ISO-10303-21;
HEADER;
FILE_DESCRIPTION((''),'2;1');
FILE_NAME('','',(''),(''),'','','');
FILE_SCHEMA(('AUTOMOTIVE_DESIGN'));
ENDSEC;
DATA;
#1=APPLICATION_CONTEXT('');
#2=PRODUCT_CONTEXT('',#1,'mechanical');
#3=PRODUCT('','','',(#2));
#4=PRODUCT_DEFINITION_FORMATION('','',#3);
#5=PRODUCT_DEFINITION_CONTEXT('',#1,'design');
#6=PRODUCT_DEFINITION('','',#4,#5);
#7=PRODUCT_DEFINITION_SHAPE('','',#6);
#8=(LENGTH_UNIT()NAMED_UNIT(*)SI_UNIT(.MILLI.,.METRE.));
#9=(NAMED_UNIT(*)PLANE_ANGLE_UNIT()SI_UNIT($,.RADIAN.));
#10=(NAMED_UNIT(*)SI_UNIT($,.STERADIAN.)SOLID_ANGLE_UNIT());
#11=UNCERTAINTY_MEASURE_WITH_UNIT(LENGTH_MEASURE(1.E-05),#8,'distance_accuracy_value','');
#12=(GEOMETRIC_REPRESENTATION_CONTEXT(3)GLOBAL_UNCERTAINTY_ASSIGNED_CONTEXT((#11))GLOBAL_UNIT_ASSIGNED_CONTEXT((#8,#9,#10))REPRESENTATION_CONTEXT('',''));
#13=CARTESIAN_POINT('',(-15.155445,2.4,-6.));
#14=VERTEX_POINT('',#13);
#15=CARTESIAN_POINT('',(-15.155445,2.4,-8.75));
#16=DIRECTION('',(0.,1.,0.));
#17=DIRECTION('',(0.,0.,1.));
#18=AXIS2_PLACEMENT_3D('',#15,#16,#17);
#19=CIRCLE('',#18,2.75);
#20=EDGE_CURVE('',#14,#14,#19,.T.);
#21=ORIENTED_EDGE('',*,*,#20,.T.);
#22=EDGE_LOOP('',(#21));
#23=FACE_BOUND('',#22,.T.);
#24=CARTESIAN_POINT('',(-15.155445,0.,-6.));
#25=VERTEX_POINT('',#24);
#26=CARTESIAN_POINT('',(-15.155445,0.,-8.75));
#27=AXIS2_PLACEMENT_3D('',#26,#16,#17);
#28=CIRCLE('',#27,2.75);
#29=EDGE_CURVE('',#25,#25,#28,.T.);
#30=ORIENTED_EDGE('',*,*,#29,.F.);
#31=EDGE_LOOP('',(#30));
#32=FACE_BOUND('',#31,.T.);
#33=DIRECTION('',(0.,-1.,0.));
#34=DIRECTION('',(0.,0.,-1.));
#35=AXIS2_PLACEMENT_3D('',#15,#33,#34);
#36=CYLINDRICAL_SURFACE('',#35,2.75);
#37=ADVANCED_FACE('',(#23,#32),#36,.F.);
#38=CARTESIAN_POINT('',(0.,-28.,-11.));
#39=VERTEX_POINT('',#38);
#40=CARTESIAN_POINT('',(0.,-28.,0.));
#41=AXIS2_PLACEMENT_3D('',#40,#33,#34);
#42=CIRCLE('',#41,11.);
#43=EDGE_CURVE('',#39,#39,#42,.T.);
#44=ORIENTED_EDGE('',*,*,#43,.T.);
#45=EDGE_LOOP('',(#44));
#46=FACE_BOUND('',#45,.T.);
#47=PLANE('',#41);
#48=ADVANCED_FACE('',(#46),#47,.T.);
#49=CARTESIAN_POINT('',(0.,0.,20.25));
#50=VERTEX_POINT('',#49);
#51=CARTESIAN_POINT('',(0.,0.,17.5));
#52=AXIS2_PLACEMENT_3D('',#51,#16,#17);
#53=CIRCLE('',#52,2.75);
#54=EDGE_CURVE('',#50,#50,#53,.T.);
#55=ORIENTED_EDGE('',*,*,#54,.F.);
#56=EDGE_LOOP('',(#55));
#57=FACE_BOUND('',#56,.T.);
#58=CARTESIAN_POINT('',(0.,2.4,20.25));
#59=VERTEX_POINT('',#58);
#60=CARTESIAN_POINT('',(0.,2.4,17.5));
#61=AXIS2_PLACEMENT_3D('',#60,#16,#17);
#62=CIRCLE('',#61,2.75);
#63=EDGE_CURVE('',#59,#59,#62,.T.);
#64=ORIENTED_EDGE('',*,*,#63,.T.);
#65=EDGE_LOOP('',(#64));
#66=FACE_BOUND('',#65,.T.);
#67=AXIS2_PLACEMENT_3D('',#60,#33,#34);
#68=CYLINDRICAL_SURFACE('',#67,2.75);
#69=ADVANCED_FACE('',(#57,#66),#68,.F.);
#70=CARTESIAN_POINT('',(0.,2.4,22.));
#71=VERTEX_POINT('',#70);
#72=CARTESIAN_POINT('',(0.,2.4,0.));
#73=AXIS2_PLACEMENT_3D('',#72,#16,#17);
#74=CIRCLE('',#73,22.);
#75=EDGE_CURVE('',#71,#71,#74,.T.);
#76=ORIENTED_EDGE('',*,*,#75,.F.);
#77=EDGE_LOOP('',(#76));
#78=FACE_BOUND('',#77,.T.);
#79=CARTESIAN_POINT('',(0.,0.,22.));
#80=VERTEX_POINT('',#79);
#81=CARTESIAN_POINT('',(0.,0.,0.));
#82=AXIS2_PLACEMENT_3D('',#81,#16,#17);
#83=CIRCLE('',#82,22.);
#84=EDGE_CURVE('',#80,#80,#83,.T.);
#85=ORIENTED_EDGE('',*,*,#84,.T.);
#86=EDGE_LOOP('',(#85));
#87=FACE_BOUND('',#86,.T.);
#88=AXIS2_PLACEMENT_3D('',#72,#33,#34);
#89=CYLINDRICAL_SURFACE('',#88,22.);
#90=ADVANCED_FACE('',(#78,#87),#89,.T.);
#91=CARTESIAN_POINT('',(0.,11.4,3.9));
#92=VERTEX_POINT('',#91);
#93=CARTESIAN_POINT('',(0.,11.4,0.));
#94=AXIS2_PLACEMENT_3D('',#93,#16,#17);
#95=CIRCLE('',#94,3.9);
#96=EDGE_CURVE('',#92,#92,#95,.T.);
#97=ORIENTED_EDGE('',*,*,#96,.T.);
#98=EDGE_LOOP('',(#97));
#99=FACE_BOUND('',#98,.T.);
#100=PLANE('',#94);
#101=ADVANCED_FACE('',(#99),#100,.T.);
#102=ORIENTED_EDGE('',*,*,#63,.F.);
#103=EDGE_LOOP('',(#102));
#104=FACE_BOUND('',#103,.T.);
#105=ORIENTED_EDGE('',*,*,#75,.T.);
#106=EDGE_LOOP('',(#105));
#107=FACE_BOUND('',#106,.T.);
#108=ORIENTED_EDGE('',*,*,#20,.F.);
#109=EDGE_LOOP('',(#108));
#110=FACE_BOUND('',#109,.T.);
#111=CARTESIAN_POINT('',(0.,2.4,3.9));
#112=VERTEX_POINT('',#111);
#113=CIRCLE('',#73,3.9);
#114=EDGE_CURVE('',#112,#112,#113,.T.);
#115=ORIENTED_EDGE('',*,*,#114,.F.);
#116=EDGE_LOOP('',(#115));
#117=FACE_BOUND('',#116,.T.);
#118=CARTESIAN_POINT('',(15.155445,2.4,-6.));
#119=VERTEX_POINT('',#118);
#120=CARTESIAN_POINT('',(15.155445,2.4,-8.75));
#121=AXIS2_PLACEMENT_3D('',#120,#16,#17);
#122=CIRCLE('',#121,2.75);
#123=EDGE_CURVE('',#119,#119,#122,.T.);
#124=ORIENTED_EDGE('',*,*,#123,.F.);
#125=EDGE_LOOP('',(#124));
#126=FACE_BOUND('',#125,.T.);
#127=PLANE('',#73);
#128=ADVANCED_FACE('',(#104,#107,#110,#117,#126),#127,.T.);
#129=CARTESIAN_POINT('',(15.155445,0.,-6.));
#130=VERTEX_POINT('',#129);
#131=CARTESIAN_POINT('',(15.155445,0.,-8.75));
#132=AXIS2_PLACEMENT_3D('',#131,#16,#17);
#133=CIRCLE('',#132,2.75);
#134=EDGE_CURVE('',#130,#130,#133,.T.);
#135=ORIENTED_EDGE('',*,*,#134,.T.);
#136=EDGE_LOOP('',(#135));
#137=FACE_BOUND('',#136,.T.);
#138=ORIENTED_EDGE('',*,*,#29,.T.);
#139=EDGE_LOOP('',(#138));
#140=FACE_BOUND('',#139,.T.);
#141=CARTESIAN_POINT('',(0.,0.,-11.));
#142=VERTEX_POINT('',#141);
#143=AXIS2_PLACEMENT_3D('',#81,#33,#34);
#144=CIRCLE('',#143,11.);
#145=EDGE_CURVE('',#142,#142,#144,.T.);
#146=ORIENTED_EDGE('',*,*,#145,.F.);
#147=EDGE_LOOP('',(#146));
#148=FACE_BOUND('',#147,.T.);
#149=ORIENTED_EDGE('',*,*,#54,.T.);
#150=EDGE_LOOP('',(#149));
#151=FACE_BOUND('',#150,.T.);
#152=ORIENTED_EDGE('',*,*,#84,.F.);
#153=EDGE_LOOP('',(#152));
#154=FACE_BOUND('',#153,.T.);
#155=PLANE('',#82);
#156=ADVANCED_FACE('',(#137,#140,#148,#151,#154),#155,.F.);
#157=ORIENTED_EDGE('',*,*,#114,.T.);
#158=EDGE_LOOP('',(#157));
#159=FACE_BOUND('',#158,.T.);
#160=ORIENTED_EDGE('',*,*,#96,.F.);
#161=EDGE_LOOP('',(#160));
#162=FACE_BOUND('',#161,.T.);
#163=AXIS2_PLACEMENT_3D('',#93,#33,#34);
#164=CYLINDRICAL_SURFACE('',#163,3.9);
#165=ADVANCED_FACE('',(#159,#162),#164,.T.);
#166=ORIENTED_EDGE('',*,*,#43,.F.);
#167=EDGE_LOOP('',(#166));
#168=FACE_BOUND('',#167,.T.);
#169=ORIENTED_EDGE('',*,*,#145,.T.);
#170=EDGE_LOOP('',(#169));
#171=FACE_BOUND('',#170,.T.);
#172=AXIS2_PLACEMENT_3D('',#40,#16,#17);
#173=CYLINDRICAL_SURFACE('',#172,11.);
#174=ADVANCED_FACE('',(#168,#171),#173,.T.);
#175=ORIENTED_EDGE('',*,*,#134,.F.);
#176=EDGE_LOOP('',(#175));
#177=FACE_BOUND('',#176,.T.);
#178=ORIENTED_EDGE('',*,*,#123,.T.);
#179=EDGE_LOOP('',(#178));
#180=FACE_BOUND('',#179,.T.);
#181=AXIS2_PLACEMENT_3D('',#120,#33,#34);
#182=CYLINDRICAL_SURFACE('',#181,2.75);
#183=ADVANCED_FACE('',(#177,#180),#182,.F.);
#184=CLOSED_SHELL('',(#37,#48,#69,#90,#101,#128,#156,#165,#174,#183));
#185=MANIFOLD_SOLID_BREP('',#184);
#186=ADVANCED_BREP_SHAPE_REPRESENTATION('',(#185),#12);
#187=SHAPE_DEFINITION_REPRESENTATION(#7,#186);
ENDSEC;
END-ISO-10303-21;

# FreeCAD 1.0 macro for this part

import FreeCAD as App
import Part
import Sketcher
from FreeCAD import Vector
Q = App.Units.Quantity

doc = App.newDocument("Part")
body = doc.addObject("PartDesign::Body", "Body")

sketch1 = body.newObject("Sketcher::SketchObject", "Sketch")
sketch1.AttachmentSupport = (doc.getObject("XZ_Plane"), [""])
sketch1.MapMode = "FlatFace"
sketch1.addGeometry([
    Part.Circle(Vector(0, 0, 0), Vector(0, 0, 1), 22),
    Part.Circle(Vector(0, 17.5, 0), Vector(0, 0, 1), 2.8),
    Part.Circle(Vector(-15.2, -8.8, 0), Vector(0, 0, 1), 2.8),
    Part.Circle(Vector(15.2, -8.8, 0), Vector(0, 0, 1), 2.8),
], False)
sketch1.addConstraint([
    Sketcher.Constraint("Coincident", 0, 3, -1, 1),
    Sketcher.Constraint("Equal", 1, 2),
    Sketcher.Constraint("Equal", 2, 3),
    Sketcher.Constraint("Symmetric", 2, 3, 3, 3, -2),
    Sketcher.Constraint("PointOnObject", 1, 3, -2),
    Sketcher.Constraint("Diameter", 0, Q("44 mm")),
    Sketcher.Constraint("Diameter", 1, Q("5.5 mm")),
    Sketcher.Constraint("DistanceY", -1, 1, 1, 3, Q("17.5 mm")),
    Sketcher.Constraint("DistanceY", 2, 3, -1, 1, Q("8.75 mm")),
    Sketcher.Constraint("DistanceX", 2, 3, 3, 3, Q("30.310889 mm")),
])
pad1 = body.newObject("PartDesign::Pad", "Pad")
pad1.Profile = sketch1
pad1.Length = 2.4
pad1.Reversed = True

sketch2 = body.newObject("Sketcher::SketchObject", "Sketch001")
sketch2.AttachmentSupport = (doc.getObject("XZ_Plane"), [""])
sketch2.MapMode = "FlatFace"
sketch2.AttachmentOffset = App.Placement(Vector(0, 0, -2.4), App.Rotation())
sketch2.addGeometry(Part.Circle(Vector(0, 0, 0), Vector(0, 0, 1), 3.9), False)
sketch2.addConstraint([
    Sketcher.Constraint("Coincident", 0, 3, -1, 1),
    Sketcher.Constraint("Diameter", 0, Q("7.8 mm")),
])
pad2 = body.newObject("PartDesign::Pad", "Pad001")
pad2.Profile = sketch2
pad2.Length = 9
pad2.Reversed = True

sketch3 = body.newObject("Sketcher::SketchObject", "Sketch002")
sketch3.AttachmentSupport = (doc.getObject("XZ_Plane"), [""])
sketch3.MapMode = "FlatFace"
sketch3.addGeometry(Part.Circle(Vector(0, 0, 0), Vector(0, 0, 1), 11), False)
sketch3.addConstraint([
    Sketcher.Constraint("Coincident", 0, 3, -1, 1),
    Sketcher.Constraint("Diameter", 0, Q("22 mm")),
])
pad3 = body.newObject("PartDesign::Pad", "Pad002")
pad3.Profile = sketch3
pad3.Length = 28

doc.recompute()
